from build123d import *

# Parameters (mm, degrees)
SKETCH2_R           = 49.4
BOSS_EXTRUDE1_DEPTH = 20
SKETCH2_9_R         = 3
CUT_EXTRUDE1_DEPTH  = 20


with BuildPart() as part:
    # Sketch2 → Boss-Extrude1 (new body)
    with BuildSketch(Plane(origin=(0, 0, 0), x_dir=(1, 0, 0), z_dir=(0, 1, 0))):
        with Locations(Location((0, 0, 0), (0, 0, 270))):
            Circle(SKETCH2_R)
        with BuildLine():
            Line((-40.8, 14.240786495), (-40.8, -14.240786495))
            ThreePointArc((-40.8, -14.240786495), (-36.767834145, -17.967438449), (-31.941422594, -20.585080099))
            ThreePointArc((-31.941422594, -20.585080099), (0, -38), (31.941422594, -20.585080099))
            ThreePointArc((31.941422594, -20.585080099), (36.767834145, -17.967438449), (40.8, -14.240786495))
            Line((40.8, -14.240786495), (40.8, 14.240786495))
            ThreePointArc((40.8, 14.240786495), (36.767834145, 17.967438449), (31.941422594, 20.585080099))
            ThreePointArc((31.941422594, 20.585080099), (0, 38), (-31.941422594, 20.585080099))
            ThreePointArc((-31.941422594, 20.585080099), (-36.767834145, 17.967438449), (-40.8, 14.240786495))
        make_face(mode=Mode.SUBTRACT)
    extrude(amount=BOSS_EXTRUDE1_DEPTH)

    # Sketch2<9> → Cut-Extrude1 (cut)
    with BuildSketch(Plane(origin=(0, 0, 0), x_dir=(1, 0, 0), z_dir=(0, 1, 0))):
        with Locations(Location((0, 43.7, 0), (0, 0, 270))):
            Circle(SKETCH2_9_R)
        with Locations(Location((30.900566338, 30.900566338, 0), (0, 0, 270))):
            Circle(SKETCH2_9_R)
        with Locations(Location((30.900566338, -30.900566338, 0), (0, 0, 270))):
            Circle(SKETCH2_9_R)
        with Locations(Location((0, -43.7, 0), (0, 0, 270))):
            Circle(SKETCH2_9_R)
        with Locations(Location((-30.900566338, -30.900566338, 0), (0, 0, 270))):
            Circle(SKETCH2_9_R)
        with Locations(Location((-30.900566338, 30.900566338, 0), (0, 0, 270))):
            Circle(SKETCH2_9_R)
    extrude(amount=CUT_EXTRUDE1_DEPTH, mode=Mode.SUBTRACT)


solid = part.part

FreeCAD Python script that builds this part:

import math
import FreeCAD as App
import Part
import Sketcher
from FreeCAD import Vector

doc = App.newDocument("Part")
body = doc.addObject("PartDesign::Body", "Body")

sketch1 = body.newObject("Sketcher::SketchObject", "Sketch")
sketch1.AttachmentSupport = (doc.getObject("XZ_Plane"), [""])
sketch1.MapMode = "FlatFace"
sketch1.addGeometry(Part.Circle(Vector(0, 0, 0), Vector(0, 0, 1), 49), False)
sketch1.addGeometry(Part.LineSegment(Vector(-41, 14, 0), Vector(-41, -14, 0)), False)
sketch1.addGeometry(Part.ArcOfCircle(Part.Circle(Vector(-24, 0, 0), Vector(0, 0, 1), 22), math.radians(-140), math.radians(-111)), False)
sketch1.addGeometry(Part.ArcOfCircle(Part.Circle(Vector(0, 0, 0), Vector(0, 0, 1), 38), math.radians(-147), math.radians(-33)), False)
sketch1.addGeometry(Part.ArcOfCircle(Part.Circle(Vector(24, 0, 0), Vector(0, 0, 1), 22), math.radians(-69), math.radians(-40)), False)
sketch1.addGeometry(Part.LineSegment(Vector(41, -14, 0), Vector(41, 14, 0)), False)
sketch1.addGeometry(Part.ArcOfCircle(Part.Circle(Vector(24, 0, 0), Vector(0, 0, 1), 22), math.radians(40), math.radians(69)), False)
sketch1.addGeometry(Part.ArcOfCircle(Part.Circle(Vector(0, 0, 0), Vector(0, 0, 1), 38), math.radians(33), math.radians(147)), False)
sketch1.addGeometry(Part.ArcOfCircle(Part.Circle(Vector(-24, 0, 0), Vector(0, 0, 1), 22), math.radians(111), math.radians(140)), False)
sketch1.addConstraint(Sketcher.Constraint("Coincident", 1, 2, 2, 1))
sketch1.addConstraint(Sketcher.Constraint("Coincident", 2, 2, 3, 1))
sketch1.addConstraint(Sketcher.Constraint("Coincident", 3, 2, 4, 1))
sketch1.addConstraint(Sketcher.Constraint("Coincident", 4, 2, 5, 1))
sketch1.addConstraint(Sketcher.Constraint("Coincident", 5, 2, 6, 1))
sketch1.addConstraint(Sketcher.Constraint("Coincident", 6, 2, 7, 1))
sketch1.addConstraint(Sketcher.Constraint("Coincident", 7, 2, 8, 1))
sketch1.addConstraint(Sketcher.Constraint("Coincident", 8, 2, 1, 1))
sketch1.addConstraint(Sketcher.Constraint("Vertical", 1))
sketch1.addConstraint(Sketcher.Constraint("Vertical", 5))
sketch1.addConstraint(Sketcher.Constraint("Coincident", 0, 3, -1, 1))
sketch1.addConstraint(Sketcher.Constraint("Coincident", 3, 3, -1, 1))
sketch1.addConstraint(Sketcher.Constraint("Coincident", 7, 3, -1, 1))
sketch1.addConstraint(Sketcher.Constraint("Coincident", 6, 3, 4, 3))
sketch1.addConstraint(Sketcher.Constraint("Coincident", 8, 3, 2, 3))
sketch1.addConstraint(Sketcher.Constraint("Equal", 2, 4))
sketch1.addConstraint(Sketcher.Constraint("Equal", 4, 6))
sketch1.addConstraint(Sketcher.Constraint("Equal", 3, 7))
sketch1.addConstraint(Sketcher.Constraint("Equal", 6, 8))
sketch1.addConstraint(Sketcher.Constraint("Symmetric", 2, 3, 4, 3, -1, 1))
sketch1.addConstraint(Sketcher.Constraint("Symmetric", 1, 2, 4, 2, -2))
sketch1.addConstraint(Sketcher.Constraint("Radius", 3, 38.0))
sketch1.addConstraint(Sketcher.Constraint("Diameter", 0, 98.8))
sketch1.addConstraint(Sketcher.Constraint("Radius", 2, 22.1))
sketch1.addConstraint(Sketcher.Constraint("DistanceX", 2, 3, -1, 1, 23.9))
sketch1.addConstraint(Sketcher.Constraint("DistanceX", 1, 2, -1, 1, 40.8))
pad1 = body.newObject("PartDesign::Pad", "Pad")
pad1.Profile = sketch1
pad1.Length = 20
pad1.Reversed = True

sketch2 = body.newObject("Sketcher::SketchObject", "Sketch001")
sketch2.AttachmentSupport = (doc.getObject("XZ_Plane"), [""])
sketch2.MapMode = "FlatFace"
sketch2.addGeometry(Part.Circle(Vector(0, -43.7, 0), Vector(0, 0, 1), 3), False)
sketch2.addGeometry(Part.Circle(Vector(30.9, -30.9, 0), Vector(0, 0, 1), 3), False)
sketch2.addGeometry(Part.Circle(Vector(30.9, 30.9, 0), Vector(0, 0, 1), 3), False)
sketch2.addGeometry(Part.Circle(Vector(0, 43.7, 0), Vector(0, 0, 1), 3), False)
sketch2.addGeometry(Part.Circle(Vector(-30.9, 30.9, 0), Vector(0, 0, 1), 3), False)
sketch2.addGeometry(Part.Circle(Vector(-30.9, -30.9, 0), Vector(0, 0, 1), 3), False)
sketch2.addConstraint(Sketcher.Constraint("Equal", 0, 1))
sketch2.addConstraint(Sketcher.Constraint("Equal", 1, 2))
sketch2.addConstraint(Sketcher.Constraint("Equal", 2, 3))
sketch2.addConstraint(Sketcher.Constraint("Equal", 3, 4))
sketch2.addConstraint(Sketcher.Constraint("Equal", 4, 5))
sketch2.addConstraint(Sketcher.Constraint("Symmetric", 0, 3, 3, 3, -1, 1))
sketch2.addConstraint(Sketcher.Constraint("Symmetric", 1, 3, 4, 3, -1, 1))
sketch2.addConstraint(Sketcher.Constraint("Symmetric", 2, 3, 5, 3, -1, 1))
sketch2.addConstraint(Sketcher.Constraint("Symmetric", 2, 3, 4, 3, -2))
sketch2.addConstraint(Sketcher.Constraint("PointOnObject", 0, 3, -2))
sketch2.addConstraint(Sketcher.Constraint("Diameter", 0, 6.0))
sketch2.addConstraint(Sketcher.Constraint("DistanceY", 0, 3, -1, 1, 43.7))
sketch2.addConstraint(Sketcher.Constraint("DistanceX", -1, 1, 1, 3, 30.900566))
sketch2.addConstraint(Sketcher.Constraint("DistanceY", 1, 3, -1, 1, 30.900566))
pocket1 = body.newObject("PartDesign::Pocket", "Pocket")
pocket1.Profile = sketch2
pocket1.Length = 20

doc.recompute()
